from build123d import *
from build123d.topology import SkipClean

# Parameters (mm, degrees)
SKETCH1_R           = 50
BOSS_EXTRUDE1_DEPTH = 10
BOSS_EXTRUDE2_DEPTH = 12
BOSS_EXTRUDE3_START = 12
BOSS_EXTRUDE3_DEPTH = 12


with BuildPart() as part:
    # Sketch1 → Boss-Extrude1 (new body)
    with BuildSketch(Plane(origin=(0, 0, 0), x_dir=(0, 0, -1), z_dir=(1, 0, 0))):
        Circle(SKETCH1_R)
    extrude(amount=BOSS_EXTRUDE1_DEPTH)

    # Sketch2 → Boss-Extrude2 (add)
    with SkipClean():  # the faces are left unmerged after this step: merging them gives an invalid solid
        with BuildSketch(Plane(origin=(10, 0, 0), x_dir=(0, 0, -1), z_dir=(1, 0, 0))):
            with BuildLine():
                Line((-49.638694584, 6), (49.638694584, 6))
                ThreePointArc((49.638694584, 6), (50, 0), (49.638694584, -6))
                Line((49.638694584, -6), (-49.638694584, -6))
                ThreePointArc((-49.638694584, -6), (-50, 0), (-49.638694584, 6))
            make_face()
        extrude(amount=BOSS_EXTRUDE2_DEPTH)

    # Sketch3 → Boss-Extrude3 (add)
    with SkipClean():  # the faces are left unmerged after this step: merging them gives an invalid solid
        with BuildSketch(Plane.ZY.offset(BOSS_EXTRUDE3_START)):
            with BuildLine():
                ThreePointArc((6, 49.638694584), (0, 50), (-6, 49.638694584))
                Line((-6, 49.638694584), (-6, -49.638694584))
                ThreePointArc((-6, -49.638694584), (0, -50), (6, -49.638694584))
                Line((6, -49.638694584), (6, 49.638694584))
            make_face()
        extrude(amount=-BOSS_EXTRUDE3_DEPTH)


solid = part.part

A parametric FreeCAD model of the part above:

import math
import FreeCAD as App
import Part
import Sketcher
from FreeCAD import Vector
Q = App.Units.Quantity

doc = App.newDocument("Part")
body = doc.addObject("PartDesign::Body", "Body")

# Sketch on YZ plane
sketch1 = body.newObject("Sketcher::SketchObject", "Sketch")
sketch1.AttachmentSupport = (doc.getObject("YZ_Plane"), [""])
sketch1.MapMode = "FlatFace"
sketch1.addGeometry(Part.Circle(Vector(0, 0, 0), Vector(0, 0, 1), 50), False)
sketch1.addConstraint(Sketcher.Constraint("Coincident", 0, 3, -1, 1))
sketch1.addConstraint(Sketcher.Constraint("Diameter", 0, Q("100 mm")))
pad1 = body.newObject("PartDesign::Pad", "Pad")
pad1.Profile = sketch1
pad1.Length = 10

# Sketch on YZ plane
sketch2 = body.newObject("Sketcher::SketchObject", "Sketch001")
sketch2.AttachmentSupport = (doc.getObject("YZ_Plane"), [""])
sketch2.MapMode = "FlatFace"
sketch2.AttachmentOffset = App.Placement(Vector(0, 0, 10), App.Rotation())
sketch2.addGeometry(Part.LineSegment(Vector(6, -50, 0), Vector(6, 50, 0)), False)
sketch2.addGeometry(Part.ArcOfCircle(Part.Circle(Vector(0, 0, 0), Vector(0, 0, 1), 50), math.radians(83.11), math.radians(96.89)), False)
sketch2.addGeometry(Part.LineSegment(Vector(-6, 50, 0), Vector(-6, -50, 0)), False)
sketch2.addGeometry(Part.ArcOfCircle(Part.Circle(Vector(0, 0, 0), Vector(0, 0, 1), 50), math.radians(-96.89), math.radians(-83.11)), False)
sketch2.addConstraint(Sketcher.Constraint("Coincident", 0, 2, 1, 1))
sketch2.addConstraint(Sketcher.Constraint("Coincident", 1, 2, 2, 1))
sketch2.addConstraint(Sketcher.Constraint("Coincident", 2, 2, 3, 1))
sketch2.addConstraint(Sketcher.Constraint("Coincident", 3, 2, 0, 1))
sketch2.addConstraint(Sketcher.Constraint("Vertical", 0))
sketch2.addConstraint(Sketcher.Constraint("Vertical", 2))
sketch2.addConstraint(Sketcher.Constraint("Coincident", 1, 3, -1, 1))
sketch2.addConstraint(Sketcher.Constraint("Coincident", 3, 3, -1, 1))
sketch2.addConstraint(Sketcher.Constraint("Equal", 1, 3))
sketch2.addConstraint(Sketcher.Constraint("Horizontal", 0, 2, 1, 2))
sketch2.addConstraint(Sketcher.Constraint("Radius", 1, Q("50 mm")))
sketch2.addConstraint(Sketcher.Constraint("DistanceX", -1, 1, 0, 2, Q("6 mm")))
pad2 = body.newObject("PartDesign::Pad", "Pad001")
pad2.Profile = sketch2
pad2.Length = 12

# Sketch on YZ plane
sketch3 = body.newObject("Sketcher::SketchObject", "Sketch002")
sketch3.AttachmentSupport = (doc.getObject("YZ_Plane"), [""])
sketch3.MapMode = "FlatFace"
sketch3.AttachmentOffset = App.Placement(Vector(0, 0, -12), App.Rotation())
sketch3.addGeometry(Part.ArcOfCircle(Part.Circle(Vector(0, 0, 0), Vector(0, 0, 1), 50), math.radians(-6.89), math.radians(6.89)), False)
sketch3.addGeometry(Part.LineSegment(Vector(50, -6, 0), Vector(-50, -6, 0)), False)
sketch3.addGeometry(Part.ArcOfCircle(Part.Circle(Vector(0, 0, 0), Vector(0, 0, 1), 50), math.radians(173.11), math.radians(186.89)), False)
sketch3.addGeometry(Part.LineSegment(Vector(-50, 6, 0), Vector(50, 6, 0)), False)
sketch3.addConstraint(Sketcher.Constraint("Coincident", 0, 1, 1, 1))
sketch3.addConstraint(Sketcher.Constraint("Coincident", 1, 2, 2, 2))
sketch3.addConstraint(Sketcher.Constraint("Coincident", 2, 1, 3, 1))
sketch3.addConstraint(Sketcher.Constraint("Coincident", 3, 2, 0, 2))
sketch3.addConstraint(Sketcher.Constraint("Horizontal", 1))
sketch3.addConstraint(Sketcher.Constraint("Horizontal", 3))
sketch3.addConstraint(Sketcher.Constraint("Coincident", 0, 3, -1, 1))
sketch3.addConstraint(Sketcher.Constraint("Coincident", 2, 3, -1, 1))
sketch3.addConstraint(Sketcher.Constraint("Equal", 0, 2))
sketch3.addConstraint(Sketcher.Constraint("Vertical", 1, 2, 2, 1))
sketch3.addConstraint(Sketcher.Constraint("Radius", 0, Q("50 mm")))
sketch3.addConstraint(Sketcher.Constraint("DistanceY", 0, 1, -1, 1, Q("6 mm")))
pad3 = body.newObject("PartDesign::Pad", "Pad002")
pad3.Profile = sketch3
pad3.Length = 12

doc.recompute()
